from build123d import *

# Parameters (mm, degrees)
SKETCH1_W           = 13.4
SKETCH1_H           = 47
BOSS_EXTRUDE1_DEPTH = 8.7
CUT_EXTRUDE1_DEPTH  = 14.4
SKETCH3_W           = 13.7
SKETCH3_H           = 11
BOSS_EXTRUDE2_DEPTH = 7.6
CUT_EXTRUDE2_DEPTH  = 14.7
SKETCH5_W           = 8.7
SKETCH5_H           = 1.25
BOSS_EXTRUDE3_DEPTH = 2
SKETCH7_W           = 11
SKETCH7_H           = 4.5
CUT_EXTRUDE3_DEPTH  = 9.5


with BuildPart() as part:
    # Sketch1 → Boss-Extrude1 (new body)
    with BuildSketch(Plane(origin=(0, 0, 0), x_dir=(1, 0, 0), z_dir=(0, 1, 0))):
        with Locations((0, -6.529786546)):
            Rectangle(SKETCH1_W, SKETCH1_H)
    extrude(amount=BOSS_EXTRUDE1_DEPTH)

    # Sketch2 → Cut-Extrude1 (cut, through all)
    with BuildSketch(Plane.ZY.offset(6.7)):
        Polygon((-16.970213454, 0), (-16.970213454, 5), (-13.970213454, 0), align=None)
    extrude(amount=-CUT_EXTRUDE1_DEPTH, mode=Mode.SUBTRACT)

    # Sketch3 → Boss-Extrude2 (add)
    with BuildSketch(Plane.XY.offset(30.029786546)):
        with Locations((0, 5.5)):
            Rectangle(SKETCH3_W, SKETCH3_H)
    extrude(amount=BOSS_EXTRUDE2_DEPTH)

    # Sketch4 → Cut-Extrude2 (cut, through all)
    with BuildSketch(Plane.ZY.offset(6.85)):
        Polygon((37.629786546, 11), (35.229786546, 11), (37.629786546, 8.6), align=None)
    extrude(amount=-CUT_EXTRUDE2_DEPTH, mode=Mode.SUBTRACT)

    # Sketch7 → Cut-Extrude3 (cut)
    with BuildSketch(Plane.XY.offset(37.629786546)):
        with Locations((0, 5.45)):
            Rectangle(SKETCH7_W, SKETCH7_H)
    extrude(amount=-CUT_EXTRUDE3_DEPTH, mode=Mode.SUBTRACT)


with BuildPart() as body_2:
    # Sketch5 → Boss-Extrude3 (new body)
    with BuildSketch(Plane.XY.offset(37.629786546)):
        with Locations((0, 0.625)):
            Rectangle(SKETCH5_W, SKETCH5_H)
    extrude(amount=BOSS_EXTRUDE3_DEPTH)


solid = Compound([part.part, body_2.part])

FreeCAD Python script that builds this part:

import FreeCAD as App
import Part
import Sketcher

V = App.Vector
Q = App.Units.Quantity

doc = App.newDocument("Part")
body = doc.addObject("PartDesign::Body", "Body")

# Sketch on XZ plane
sketch1 = body.newObject("Sketcher::SketchObject", "Sketch")
sketch1.AttachmentSupport = (doc.getObject("XZ_Plane"), [""])
sketch1.MapMode = "FlatFace"
sketch1.addGeometry(Part.LineSegment(V(-7, -17, 0), V(-7, 30, 0)), False)
sketch1.addGeometry(Part.LineSegment(V(-7, 30, 0), V(7, 30, 0)), False)
sketch1.addGeometry(Part.LineSegment(V(7, 30, 0), V(7, -17, 0)), False)
sketch1.addGeometry(Part.LineSegment(V(7, -17, 0), V(-7, -17, 0)), False)
sketch1.addConstraint(Sketcher.Constraint("Coincident", 0, 2, 1, 1))
sketch1.addConstraint(Sketcher.Constraint("Coincident", 1, 2, 2, 1))
sketch1.addConstraint(Sketcher.Constraint("Coincident", 2, 2, 3, 1))
sketch1.addConstraint(Sketcher.Constraint("Coincident", 3, 2, 0, 1))
sketch1.addConstraint(Sketcher.Constraint("Vertical", 0))
sketch1.addConstraint(Sketcher.Constraint("Horizontal", 1))
sketch1.addConstraint(Sketcher.Constraint("Vertical", 2))
sketch1.addConstraint(Sketcher.Constraint("Horizontal", 3))
sketch1.addConstraint(Sketcher.Constraint("DistanceY", 0, 1, 0, 2, Q("47 mm")))
sketch1.addConstraint(Sketcher.Constraint("DistanceX", 1, 1, 1, 2, Q("13.4 mm")))
sketch1.addConstraint(Sketcher.Constraint("DistanceX", 0, 2, -1, 1, Q("6.7 mm")))
sketch1.addConstraint(Sketcher.Constraint("DistanceY", -1, 1, 0, 2, Q("30.029787 mm")))
pad1 = body.newObject("PartDesign::Pad", "Pad")
pad1.Profile = sketch1
pad1.Length = 8.7
pad1.Reversed = True

# Sketch on YZ plane
sketch2 = body.newObject("Sketcher::SketchObject", "Sketch001")
sketch2.AttachmentSupport = (doc.getObject("YZ_Plane"), [""])
sketch2.MapMode = "FlatFace"
sketch2.AttachmentOffset = App.Placement(V(0, 0, -6.7), App.Rotation())
sketch2.addGeometry(Part.LineSegment(V(5, -17, 0), V(0, -17, 0)), False)
sketch2.addGeometry(Part.LineSegment(V(0, -17, 0), V(0, -14, 0)), False)
sketch2.addGeometry(Part.LineSegment(V(0, -14, 0), V(5, -17, 0)), False)
sketch2.addConstraint(Sketcher.Constraint("Coincident", 0, 2, 1, 1))
sketch2.addConstraint(Sketcher.Constraint("Coincident", 1, 2, 2, 1))
sketch2.addConstraint(Sketcher.Constraint("Coincident", 2, 2, 0, 1))
sketch2.addConstraint(Sketcher.Constraint("Horizontal", 0))
sketch2.addConstraint(Sketcher.Constraint("Vertical", 1))
sketch2.addConstraint(Sketcher.Constraint("PointOnObject", 0, 2, -2))
sketch2.addConstraint(Sketcher.Constraint("DistanceX", 0, 2, 0, 1, Q("5 mm")))
sketch2.addConstraint(Sketcher.Constraint("DistanceY", 1, 1, 1, 2, Q("3 mm")))
sketch2.addConstraint(Sketcher.Constraint("DistanceY", 0, 2, -1, 1, Q("16.970213 mm")))
pocket1 = body.newObject("PartDesign::Pocket", "Pocket")
pocket1.Profile = sketch2
pocket1.Type = "ThroughAll"
pocket1.Reversed = True

# Sketch on XY plane
sketch3 = body.newObject("Sketcher::SketchObject", "Sketch002")
sketch3.AttachmentSupport = (doc.getObject("XY_Plane"), [""])
sketch3.MapMode = "FlatFace"
sketch3.AttachmentOffset = App.Placement(V(0, 0, 30.029787), App.Rotation())
sketch3.addGeometry(Part.LineSegment(V(-7, 11, 0), V(-7, 0, 0)), False)
sketch3.addGeometry(Part.LineSegment(V(-7, 0, 0), V(7, 0, 0)), False)
sketch3.addGeometry(Part.LineSegment(V(7, 0, 0), V(7, 11, 0)), False)
sketch3.addGeometry(Part.LineSegment(V(7, 11, 0), V(-7, 11, 0)), False)
sketch3.addConstraint(Sketcher.Constraint("Coincident", 0, 2, 1, 1))
sketch3.addConstraint(Sketcher.Constraint("Coincident", 1, 2, 2, 1))
sketch3.addConstraint(Sketcher.Constraint("Coincident", 2, 2, 3, 1))
sketch3.addConstraint(Sketcher.Constraint("Coincident", 3, 2, 0, 1))
sketch3.addConstraint(Sketcher.Constraint("Vertical", 0))
sketch3.addConstraint(Sketcher.Constraint("Horizontal", 1))
sketch3.addConstraint(Sketcher.Constraint("Vertical", 2))
sketch3.addConstraint(Sketcher.Constraint("Horizontal", 3))
sketch3.addConstraint(Sketcher.Constraint("Symmetric", 0, 2, 1, 2, -1, 1))
sketch3.addConstraint(Sketcher.Constraint("DistanceY", 0, 2, 0, 1, Q("11 mm")))
sketch3.addConstraint(Sketcher.Constraint("DistanceX", 1, 1, 1, 2, Q("13.7 mm")))
pad2 = body.newObject("PartDesign::Pad", "Pad001")
pad2.Profile = sketch3
pad2.Length = 7.6

# Sketch on YZ plane
sketch4 = body.newObject("Sketcher::SketchObject", "Sketch003")
sketch4.AttachmentSupport = (doc.getObject("YZ_Plane"), [""])
sketch4.MapMode = "FlatFace"
sketch4.AttachmentOffset = App.Placement(V(0, 0, -6.85), App.Rotation())
sketch4.addGeometry(Part.LineSegment(V(11, 37.6, 0), V(11, 35.2, 0)), False)
sketch4.addGeometry(Part.LineSegment(V(11, 35.2, 0), V(8.6, 37.6, 0)), False)
sketch4.addGeometry(Part.LineSegment(V(8.6, 37.6, 0), V(11, 37.6, 0)), False)
sketch4.addConstraint(Sketcher.Constraint("Coincident", 0, 2, 1, 1))
sketch4.addConstraint(Sketcher.Constraint("Coincident", 1, 2, 2, 1))
sketch4.addConstraint(Sketcher.Constraint("Coincident", 2, 2, 0, 1))
sketch4.addConstraint(Sketcher.Constraint("Vertical", 0))
sketch4.addConstraint(Sketcher.Constraint("Horizontal", 2))
sketch4.addConstraint(Sketcher.Constraint("Equal", 2, 0))
sketch4.addConstraint(Sketcher.Constraint("DistanceX", 2, 1, 2, 2, Q("2.4 mm")))
sketch4.addConstraint(Sketcher.Constraint("DistanceX", -1, 1, 0, 2, Q("11 mm")))
sketch4.addConstraint(Sketcher.Constraint("DistanceY", -1, 1, 0, 2, Q("35.229787 mm")))
pocket2 = body.newObject("PartDesign::Pocket", "Pocket001")
pocket2.Profile = sketch4
pocket2.Type = "ThroughAll"
pocket2.Reversed = True

# Sketch on XY plane
sketch5 = body.newObject("Sketcher::SketchObject", "Sketch004")
sketch5.AttachmentSupport = (doc.getObject("XY_Plane"), [""])
sketch5.MapMode = "FlatFace"
sketch5.AttachmentOffset = App.Placement(V(0, 0, 37.629787), App.Rotation())
sketch5.addGeometry(Part.LineSegment(V(-5.5, 7.7, 0), V(-5.5, 3.2, 0)), False)
sketch5.addGeometry(Part.LineSegment(V(-5.5, 3.2, 0), V(5.5, 3.2, 0)), False)
sketch5.addGeometry(Part.LineSegment(V(5.5, 3.2, 0), V(5.5, 7.7, 0)), False)
sketch5.addGeometry(Part.LineSegment(V(5.5, 7.7, 0), V(-5.5, 7.7, 0)), False)
sketch5.addConstraint(Sketcher.Constraint("Coincident", 0, 2, 1, 1))
sketch5.addConstraint(Sketcher.Constraint("Coincident", 1, 2, 2, 1))
sketch5.addConstraint(Sketcher.Constraint("Coincident", 2, 2, 3, 1))
sketch5.addConstraint(Sketcher.Constraint("Coincident", 3, 2, 0, 1))
sketch5.addConstraint(Sketcher.Constraint("Vertical", 0))
sketch5.addConstraint(Sketcher.Constraint("Horizontal", 1))
sketch5.addConstraint(Sketcher.Constraint("Vertical", 2))
sketch5.addConstraint(Sketcher.Constraint("Horizontal", 3))
sketch5.addConstraint(Sketcher.Constraint("DistanceX", 1, 1, 1, 2, Q("11 mm")))
sketch5.addConstraint(Sketcher.Constraint("DistanceY", 0, 2, 0, 1, Q("4.5 mm")))
sketch5.addConstraint(Sketcher.Constraint("DistanceX", 0, 2, -1, 1, Q("5.5 mm")))
sketch5.addConstraint(Sketcher.Constraint("DistanceY", -1, 1, 0, 2, Q("3.2 mm")))
pocket3 = body.newObject("PartDesign::Pocket", "Pocket002")
pocket3.Profile = sketch5
pocket3.Length = 9.5
body2 = doc.addObject("PartDesign::Body", "Body001")

# Sketch on XY plane
sketch6 = body2.newObject("Sketcher::SketchObject", "Sketch005")
sketch6.AttachmentSupport = (doc.getObject("XY_Plane001"), [""])
sketch6.MapMode = "FlatFace"
sketch6.AttachmentOffset = App.Placement(V(0, 0, 37.629787), App.Rotation())
sketch6.addGeometry(Part.LineSegment(V(-4.3, 1.2, 0), V(-4.3, 0, 0)), False)
sketch6.addGeometry(Part.LineSegment(V(-4.3, 0, 0), V(4.3, 0, 0)), False)
sketch6.addGeometry(Part.LineSegment(V(4.3, 0, 0), V(4.3, 1.2, 0)), False)
sketch6.addGeometry(Part.LineSegment(V(4.3, 1.2, 0), V(-4.3, 1.2, 0)), False)
sketch6.addConstraint(Sketcher.Constraint("Coincident", 0, 2, 1, 1))
sketch6.addConstraint(Sketcher.Constraint("Coincident", 1, 2, 2, 1))
sketch6.addConstraint(Sketcher.Constraint("Coincident", 2, 2, 3, 1))
sketch6.addConstraint(Sketcher.Constraint("Coincident", 3, 2, 0, 1))
sketch6.addConstraint(Sketcher.Constraint("Vertical", 0))
sketch6.addConstraint(Sketcher.Constraint("Horizontal", 1))
sketch6.addConstraint(Sketcher.Constraint("Vertical", 2))
sketch6.addConstraint(Sketcher.Constraint("Horizontal", 3))
sketch6.addConstraint(Sketcher.Constraint("Symmetric", 0, 2, 1, 2, -1, 1))
sketch6.addConstraint(Sketcher.Constraint("DistanceX", 1, 1, 1, 2, Q("8.7 mm")))
sketch6.addConstraint(Sketcher.Constraint("DistanceY", 0, 2, 0, 1, Q("1.25 mm")))
pad3 = body2.newObject("PartDesign::Pad", "Pad002")
pad3.Profile = sketch6
pad3.Length = 2

doc.recompute()
